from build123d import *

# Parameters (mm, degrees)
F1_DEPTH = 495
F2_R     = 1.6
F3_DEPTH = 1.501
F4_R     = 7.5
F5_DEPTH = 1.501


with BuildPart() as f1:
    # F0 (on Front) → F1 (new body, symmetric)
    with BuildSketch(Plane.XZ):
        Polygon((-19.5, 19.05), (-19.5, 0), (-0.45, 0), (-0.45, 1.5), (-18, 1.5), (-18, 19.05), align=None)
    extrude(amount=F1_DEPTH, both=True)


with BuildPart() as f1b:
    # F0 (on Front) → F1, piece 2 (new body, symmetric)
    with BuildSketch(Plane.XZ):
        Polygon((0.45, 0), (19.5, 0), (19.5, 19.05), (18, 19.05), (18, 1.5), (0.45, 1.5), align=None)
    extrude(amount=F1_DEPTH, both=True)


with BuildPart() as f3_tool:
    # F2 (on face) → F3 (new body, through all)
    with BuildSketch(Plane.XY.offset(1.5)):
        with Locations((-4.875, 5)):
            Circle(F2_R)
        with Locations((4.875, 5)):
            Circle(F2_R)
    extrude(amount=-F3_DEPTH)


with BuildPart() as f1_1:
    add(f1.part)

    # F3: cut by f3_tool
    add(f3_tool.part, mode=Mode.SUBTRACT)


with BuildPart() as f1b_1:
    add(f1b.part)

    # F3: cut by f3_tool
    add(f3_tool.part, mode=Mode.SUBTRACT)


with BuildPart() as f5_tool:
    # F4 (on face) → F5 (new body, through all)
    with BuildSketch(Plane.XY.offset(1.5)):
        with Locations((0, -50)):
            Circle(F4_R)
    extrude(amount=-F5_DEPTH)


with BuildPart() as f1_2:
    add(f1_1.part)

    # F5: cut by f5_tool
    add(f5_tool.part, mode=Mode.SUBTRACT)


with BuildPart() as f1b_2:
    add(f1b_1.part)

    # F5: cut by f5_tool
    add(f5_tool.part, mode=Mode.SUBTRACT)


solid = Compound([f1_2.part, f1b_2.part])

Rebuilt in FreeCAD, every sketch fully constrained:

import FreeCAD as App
import Part
import Sketcher

V = App.Vector
Q = App.Units.Quantity

doc = App.newDocument("Part")
body = doc.addObject("PartDesign::Body", "Body")

sketch1 = body.newObject("Sketcher::SketchObject", "Sketch")
sketch1.AttachmentSupport = (doc.getObject("XZ_Plane"), [""])
sketch1.MapMode = "FlatFace"
sketch1.addGeometry([
    Part.LineSegment(V(-19.5, 19.05, 0), V(-19.5, 0, 0)),
    Part.LineSegment(V(-19.5, 0, 0), V(-0.45, 0, 0)),
    Part.LineSegment(V(-0.45, 0, 0), V(-0.45, 1.5, 0)),
    Part.LineSegment(V(-0.45, 1.5, 0), V(-18, 1.5, 0)),
    Part.LineSegment(V(-18, 1.5, 0), V(-18, 19.05, 0)),
    Part.LineSegment(V(-18, 19.05, 0), V(-19.5, 19.05, 0)),
], False)
sketch1.addConstraint([
    Sketcher.Constraint("Coincident", 0, 2, 1, 1),
    Sketcher.Constraint("Coincident", 1, 2, 2, 1),
    Sketcher.Constraint("Coincident", 2, 2, 3, 1),
    Sketcher.Constraint("Coincident", 3, 2, 4, 1),
    Sketcher.Constraint("Coincident", 4, 2, 5, 1),
    Sketcher.Constraint("Coincident", 5, 2, 0, 1),
    Sketcher.Constraint("Vertical", 0),
    Sketcher.Constraint("Horizontal", 1),
    Sketcher.Constraint("Vertical", 2),
    Sketcher.Constraint("Horizontal", 3),
    Sketcher.Constraint("Vertical", 4),
    Sketcher.Constraint("Horizontal", 5),
    Sketcher.Constraint("PointOnObject", 0, 2, -1),
    Sketcher.Constraint("Equal", 1, 0),
    Sketcher.Constraint("Equal", 5, 2),
    Sketcher.Constraint("DistanceX", 5, 2, 5, 1, Q("1.5 mm")),
    Sketcher.Constraint("DistanceX", 3, 2, -1, 1, Q("18 mm")),
    Sketcher.Constraint("DistanceX", 1, 1, 1, 2, Q("19.05 mm")),
])
pad1 = body.newObject("PartDesign::Pad", "Pad")
pad1.Profile = sketch1
pad1.Length = 990
pad1.Midplane = True
body2 = doc.addObject("PartDesign::Body", "Body001")

sketch2 = body2.newObject("Sketcher::SketchObject", "Sketch001")
sketch2.AttachmentSupport = (doc.getObject("XZ_Plane001"), [""])
sketch2.MapMode = "FlatFace"
sketch2.addGeometry([
    Part.LineSegment(V(0.45, 0, 0), V(19.5, 0, 0)),
    Part.LineSegment(V(19.5, 0, 0), V(19.5, 19.05, 0)),
    Part.LineSegment(V(19.5, 19.05, 0), V(18, 19.05, 0)),
    Part.LineSegment(V(18, 19.05, 0), V(18, 1.5, 0)),
    Part.LineSegment(V(18, 1.5, 0), V(0.45, 1.5, 0)),
    Part.LineSegment(V(0.45, 1.5, 0), V(0.45, 0, 0)),
], False)
sketch2.addConstraint([
    Sketcher.Constraint("Coincident", 0, 2, 1, 1),
    Sketcher.Constraint("Coincident", 1, 2, 2, 1),
    Sketcher.Constraint("Coincident", 2, 2, 3, 1),
    Sketcher.Constraint("Coincident", 3, 2, 4, 1),
    Sketcher.Constraint("Coincident", 4, 2, 5, 1),
    Sketcher.Constraint("Coincident", 5, 2, 0, 1),
    Sketcher.Constraint("Horizontal", 0),
    Sketcher.Constraint("Vertical", 1),
    Sketcher.Constraint("Horizontal", 2),
    Sketcher.Constraint("Vertical", 3),
    Sketcher.Constraint("Horizontal", 4),
    Sketcher.Constraint("Vertical", 5),
    Sketcher.Constraint("PointOnObject", 0, 2, -1),
    Sketcher.Constraint("Equal", 0, 1),
    Sketcher.Constraint("Equal", 4, 3),
    Sketcher.Constraint("DistanceX", 2, 2, 2, 1, Q("1.5 mm")),
    Sketcher.Constraint("DistanceX", -1, 1, 2, 2, Q("18 mm")),
    Sketcher.Constraint("DistanceX", 0, 1, 0, 2, Q("19.05 mm")),
])
pad2 = body2.newObject("PartDesign::Pad", "Pad001")
pad2.Profile = sketch2
pad2.Length = 990
pad2.Midplane = True
body3 = doc.addObject("PartDesign::Body", "Body002")
body3.AllowCompound = True

sketch3 = body3.newObject("Sketcher::SketchObject", "Sketch002")
sketch3.AttachmentSupport = (doc.getObject("XY_Plane002"), [""])
sketch3.MapMode = "FlatFace"
sketch3.AttachmentOffset = App.Placement(V(0, 0, 1.5), App.Rotation())
sketch3.addGeometry([
    Part.Circle(V(-4.875, 5, 0), V(0, 0, 1), 1.6),
    Part.Circle(V(4.875, 5, 0), V(0, 0, 1), 1.6),
], False)
sketch3.addConstraint([
    Sketcher.Constraint("Equal", 0, 1),
    Sketcher.Constraint("Symmetric", 0, 3, 1, 3, -2),
    Sketcher.Constraint("Diameter", 0, Q("3.2 mm")),
    Sketcher.Constraint("DistanceY", -1, 1, 0, 3, Q("5 mm")),
    Sketcher.Constraint("DistanceX", 0, 3, 1, 3, Q("9.75 mm")),
])
pad3 = body3.newObject("PartDesign::Pad", "Pad002")
pad3.Profile = sketch3
pad3.Length = 1.501
pad3.Reversed = True
doc.recompute()

body4 = doc.addObject("PartDesign::Body", "Body003")
body4.BaseFeature = body3
boolean = body.newObject("PartDesign::Boolean", "Boolean")
boolean.Type = "Cut"
boolean.addObjects([body4])
doc.recompute()

boolean2 = body2.newObject("PartDesign::Boolean", "Boolean001")
boolean2.Type = "Cut"
boolean2.addObjects([body3])
body5 = doc.addObject("PartDesign::Body", "Body004")

sketch4 = body5.newObject("Sketcher::SketchObject", "Sketch003")
sketch4.AttachmentSupport = (doc.getObject("XY_Plane004"), [""])
sketch4.MapMode = "FlatFace"
sketch4.AttachmentOffset = App.Placement(V(0, 0, 1.5), App.Rotation())
sketch4.addGeometry(Part.Circle(V(0, -50, 0), V(0, 0, 1), 7.5), False)
sketch4.addConstraint([
    Sketcher.Constraint("PointOnObject", 0, 3, -2),
    Sketcher.Constraint("Diameter", 0, Q("15 mm")),
    Sketcher.Constraint("DistanceY", 0, 3, -1, 1, Q("50 mm")),
])
pad4 = body5.newObject("PartDesign::Pad", "Pad003")
pad4.Profile = sketch4
pad4.Length = 1.501
pad4.Reversed = True
doc.recompute()

body6 = doc.addObject("PartDesign::Body", "Body005")
body6.BaseFeature = body5
boolean3 = body.newObject("PartDesign::Boolean", "Boolean002")
boolean3.Type = "Cut"
boolean3.addObjects([body6])
doc.recompute()

boolean4 = body2.newObject("PartDesign::Boolean", "Boolean003")
boolean4.Type = "Cut"
boolean4.addObjects([body5])

doc.recompute()
